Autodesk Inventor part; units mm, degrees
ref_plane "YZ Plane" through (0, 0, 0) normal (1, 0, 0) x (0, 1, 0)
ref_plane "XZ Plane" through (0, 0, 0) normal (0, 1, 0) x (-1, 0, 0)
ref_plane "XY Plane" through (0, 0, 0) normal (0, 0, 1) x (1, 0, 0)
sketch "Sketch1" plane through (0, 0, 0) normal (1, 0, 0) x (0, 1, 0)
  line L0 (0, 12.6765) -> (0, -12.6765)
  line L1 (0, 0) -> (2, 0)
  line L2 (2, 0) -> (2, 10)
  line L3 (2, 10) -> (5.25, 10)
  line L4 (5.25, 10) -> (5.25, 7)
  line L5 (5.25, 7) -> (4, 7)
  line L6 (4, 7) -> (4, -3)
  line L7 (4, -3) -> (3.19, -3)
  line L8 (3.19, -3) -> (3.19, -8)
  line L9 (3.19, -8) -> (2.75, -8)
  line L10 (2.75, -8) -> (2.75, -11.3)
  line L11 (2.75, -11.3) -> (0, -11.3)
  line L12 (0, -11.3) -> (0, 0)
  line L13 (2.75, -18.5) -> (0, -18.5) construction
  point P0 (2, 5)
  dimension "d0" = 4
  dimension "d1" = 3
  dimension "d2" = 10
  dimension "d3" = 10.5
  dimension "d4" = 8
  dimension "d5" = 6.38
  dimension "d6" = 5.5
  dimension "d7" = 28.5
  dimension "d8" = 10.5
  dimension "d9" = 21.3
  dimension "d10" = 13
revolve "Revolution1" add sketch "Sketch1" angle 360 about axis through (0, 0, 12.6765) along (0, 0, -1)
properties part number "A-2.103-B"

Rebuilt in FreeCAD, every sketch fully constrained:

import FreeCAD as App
import Part
import Sketcher


def add_polygon(sketch, points):
    """Adds a closed chain of lines whose ends are joined by coincident constraints."""
    first, n = sketch.GeometryCount, len(points)
    for a, b in zip(points, points[1:] + points[:1]):
        sketch.addGeometry(Part.LineSegment(App.Vector(*a, 0), App.Vector(*b, 0)), False)
    for i in range(n):
        sketch.addConstraint(Sketcher.Constraint("Coincident", first + i, 2, first + (i + 1) % n, 1))

doc = App.newDocument("Part")
body = doc.addObject("PartDesign::Body", "Body")

sketch1 = doc.addObject("Sketcher::SketchObject", "Sketch")
body.addObject(sketch1)
sketch1.AttachmentSupport = (doc.YZ_Plane, [""])
sketch1.MapMode = "FlatFace"
add_polygon(sketch1, [(2, 0), (0, 0), (0, -11.3), (2.75, -11.3), (2.75, -8), (3.19, -8), (3.19, -3), (4, -3), (4, 7), (5.25, 7), (5.25, 10), (2, 10)])
sketch1.addConstraint([
    Sketcher.Constraint("Horizontal", 0),
    Sketcher.Constraint("Vertical", 1),
    Sketcher.Constraint("Horizontal", 2),
    Sketcher.Constraint("Vertical", 3),
    Sketcher.Constraint("Horizontal", 4),
    Sketcher.Constraint("Vertical", 5),
    Sketcher.Constraint("Horizontal", 6),
    Sketcher.Constraint("Vertical", 7),
    Sketcher.Constraint("Horizontal", 8),
    Sketcher.Constraint("Vertical", 9),
    Sketcher.Constraint("Horizontal", 10),
    Sketcher.Constraint("Vertical", 11),
    Sketcher.Constraint("Coincident", 0, 2, -1, 1),
    Sketcher.Constraint("Equal", 7, 11),
    Sketcher.Constraint("DistanceY", 7, 1, 7, 2, 10.0),
    Sketcher.Constraint("DistanceY", 9, 1, 9, 2, 3.0),
    Sketcher.Constraint("DistanceY", 3, 2, -1, 1, 8.0),
    Sketcher.Constraint("DistanceX", -1, 1, 6, 2, 4.0),
    Sketcher.Constraint("DistanceX", 0, 2, 0, 1, 2.0),
    Sketcher.Constraint("DistanceY", 1, 2, 1, 1, 11.3),
    Sketcher.Constraint("DistanceX", 2, 1, 2, 2, 2.75),
    Sketcher.Constraint("DistanceX", 4, 1, 4, 2, 0.44),
    Sketcher.Constraint("DistanceX", 8, 1, 8, 2, 1.25),
])
revolution = doc.addObject("PartDesign::Revolution", "Revolution")
body.addObject(revolution)
revolution.Profile = sketch1
revolution.ReferenceAxis = (sketch1, ["V_Axis"])
revolution.Angle = 360

doc.recompute()
